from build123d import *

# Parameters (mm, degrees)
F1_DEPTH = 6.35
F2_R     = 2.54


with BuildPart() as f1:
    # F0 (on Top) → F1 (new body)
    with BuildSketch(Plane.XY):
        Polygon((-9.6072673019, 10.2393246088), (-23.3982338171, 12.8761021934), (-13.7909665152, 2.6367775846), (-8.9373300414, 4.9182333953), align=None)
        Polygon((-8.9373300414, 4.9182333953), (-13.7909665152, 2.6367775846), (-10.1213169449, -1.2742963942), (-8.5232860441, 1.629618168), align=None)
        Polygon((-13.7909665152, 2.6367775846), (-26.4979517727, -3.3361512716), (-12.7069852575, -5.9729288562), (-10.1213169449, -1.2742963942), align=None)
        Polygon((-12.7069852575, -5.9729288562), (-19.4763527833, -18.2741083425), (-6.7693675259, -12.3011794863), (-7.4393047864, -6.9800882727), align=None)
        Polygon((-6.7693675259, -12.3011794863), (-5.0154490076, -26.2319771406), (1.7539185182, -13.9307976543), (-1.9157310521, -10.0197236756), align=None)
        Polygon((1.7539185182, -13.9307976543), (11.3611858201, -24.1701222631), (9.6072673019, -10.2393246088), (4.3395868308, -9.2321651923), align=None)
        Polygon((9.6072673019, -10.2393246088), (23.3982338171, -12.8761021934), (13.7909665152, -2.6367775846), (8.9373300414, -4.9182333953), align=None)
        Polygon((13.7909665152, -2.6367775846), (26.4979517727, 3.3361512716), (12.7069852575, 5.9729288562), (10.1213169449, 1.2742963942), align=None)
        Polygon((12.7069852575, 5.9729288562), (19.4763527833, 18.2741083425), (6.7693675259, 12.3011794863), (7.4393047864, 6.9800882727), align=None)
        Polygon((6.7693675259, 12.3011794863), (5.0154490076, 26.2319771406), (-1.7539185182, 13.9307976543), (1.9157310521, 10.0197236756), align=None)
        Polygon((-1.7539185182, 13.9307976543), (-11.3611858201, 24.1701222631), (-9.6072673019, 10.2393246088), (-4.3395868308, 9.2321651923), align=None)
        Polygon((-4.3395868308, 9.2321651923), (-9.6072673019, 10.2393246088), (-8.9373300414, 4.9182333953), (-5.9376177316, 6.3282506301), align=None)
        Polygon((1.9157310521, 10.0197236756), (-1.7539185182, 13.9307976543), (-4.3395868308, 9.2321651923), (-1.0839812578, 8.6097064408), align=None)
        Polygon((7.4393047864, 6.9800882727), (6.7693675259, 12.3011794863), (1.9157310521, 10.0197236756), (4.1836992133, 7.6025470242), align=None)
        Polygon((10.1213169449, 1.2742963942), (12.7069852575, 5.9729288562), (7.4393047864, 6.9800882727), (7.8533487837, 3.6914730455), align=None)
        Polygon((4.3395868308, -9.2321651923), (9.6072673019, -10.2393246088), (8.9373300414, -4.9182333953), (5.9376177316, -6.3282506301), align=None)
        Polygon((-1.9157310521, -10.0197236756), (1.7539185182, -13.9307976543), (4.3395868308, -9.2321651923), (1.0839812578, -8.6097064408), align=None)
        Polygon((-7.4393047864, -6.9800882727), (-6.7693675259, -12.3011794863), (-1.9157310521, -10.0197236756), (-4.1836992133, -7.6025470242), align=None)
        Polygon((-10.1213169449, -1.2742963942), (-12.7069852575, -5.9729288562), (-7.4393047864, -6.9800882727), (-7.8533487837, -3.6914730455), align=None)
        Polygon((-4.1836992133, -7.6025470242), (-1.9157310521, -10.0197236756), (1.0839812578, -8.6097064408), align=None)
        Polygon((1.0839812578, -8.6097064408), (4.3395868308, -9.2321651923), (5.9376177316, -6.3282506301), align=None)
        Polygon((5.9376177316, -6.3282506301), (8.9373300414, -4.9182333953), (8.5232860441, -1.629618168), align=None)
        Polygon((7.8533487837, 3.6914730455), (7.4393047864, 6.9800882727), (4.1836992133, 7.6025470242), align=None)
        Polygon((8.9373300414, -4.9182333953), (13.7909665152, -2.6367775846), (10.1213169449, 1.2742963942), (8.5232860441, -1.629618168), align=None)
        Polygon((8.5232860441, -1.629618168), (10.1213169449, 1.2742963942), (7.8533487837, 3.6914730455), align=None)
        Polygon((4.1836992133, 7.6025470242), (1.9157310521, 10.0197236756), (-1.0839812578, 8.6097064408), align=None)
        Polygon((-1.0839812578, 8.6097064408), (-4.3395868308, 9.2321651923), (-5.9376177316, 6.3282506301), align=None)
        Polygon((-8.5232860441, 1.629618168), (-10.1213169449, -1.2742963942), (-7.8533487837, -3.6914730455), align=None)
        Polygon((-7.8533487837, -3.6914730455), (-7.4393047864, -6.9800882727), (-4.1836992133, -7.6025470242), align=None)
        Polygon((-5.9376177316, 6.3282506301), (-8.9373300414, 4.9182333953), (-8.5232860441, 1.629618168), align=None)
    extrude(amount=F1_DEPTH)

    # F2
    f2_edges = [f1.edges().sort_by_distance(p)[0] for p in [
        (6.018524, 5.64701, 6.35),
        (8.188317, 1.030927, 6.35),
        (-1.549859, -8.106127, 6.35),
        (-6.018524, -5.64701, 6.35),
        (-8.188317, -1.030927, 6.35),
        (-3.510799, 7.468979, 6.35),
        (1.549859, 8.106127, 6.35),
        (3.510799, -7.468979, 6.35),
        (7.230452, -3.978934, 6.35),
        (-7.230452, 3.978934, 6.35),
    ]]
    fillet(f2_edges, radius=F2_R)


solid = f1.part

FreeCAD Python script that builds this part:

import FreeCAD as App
import Part
import Sketcher
Q = App.Units.Quantity


def edges_at(feature, points):
    """Names of the edges that pass closest to the given points."""
    edges = feature.Shape.Edges
    near = lambda p: min(range(len(edges)), key=lambda i: edges[i].distToShape(Part.Vertex(*p))[0])
    return sorted({f"Edge{near(p) + 1}" for p in points})

doc = App.newDocument("Part")
params = doc.addObject("Spreadsheet::Sheet", "Params")
for row, (alias, value) in enumerate([
    ("pad1_length", "0.25 in"),
    ("fillet_radius", "0.1 in"),
], start=1):
    params.set(f"A{row}", alias)
    params.set(f"B{row}", "=" + value)
    params.setAlias(f"B{row}", alias)

body = doc.addObject("PartDesign::Body", "Body")

sketch1 = body.newObject("Sketcher::SketchObject", "Sketch")
sketch1.AttachmentSupport = (doc.getObject("XY_Plane"), [""])
sketch1.MapMode = "FlatFace"
sketch1.addGeometry([
    Part.LineSegment(App.Vector(23, -13, 0), App.Vector(14, -3, 0)),
    Part.LineSegment(App.Vector(14, -3, 0), App.Vector(26, 3, 0)),
    Part.LineSegment(App.Vector(26, 3, 0), App.Vector(13, 6, 0)),
    Part.LineSegment(App.Vector(13, 6, 0), App.Vector(19, 18, 0)),
    Part.LineSegment(App.Vector(19, 18, 0), App.Vector(7, 12, 0)),
    Part.LineSegment(App.Vector(7, 12, 0), App.Vector(5, 26, 0)),
    Part.LineSegment(App.Vector(5, 26, 0), App.Vector(-2, 14, 0)),
    Part.LineSegment(App.Vector(-2, 14, 0), App.Vector(-11, 24, 0)),
    Part.LineSegment(App.Vector(-11, 24, 0), App.Vector(-10, 10, 0)),
    Part.LineSegment(App.Vector(-10, 10, 0), App.Vector(-23, 13, 0)),
    Part.LineSegment(App.Vector(-23, 13, 0), App.Vector(-14, 3, 0)),
    Part.LineSegment(App.Vector(-14, 3, 0), App.Vector(-26, -3, 0)),
    Part.LineSegment(App.Vector(-26, -3, 0), App.Vector(-13, -6, 0)),
    Part.LineSegment(App.Vector(-13, -6, 0), App.Vector(-19, -18, 0)),
    Part.LineSegment(App.Vector(-19, -18, 0), App.Vector(-7, -12, 0)),
    Part.LineSegment(App.Vector(-7, -12, 0), App.Vector(-5, -26, 0)),
    Part.LineSegment(App.Vector(-5, -26, 0), App.Vector(2, -14, 0)),
    Part.LineSegment(App.Vector(2, -14, 0), App.Vector(11, -24, 0)),
    Part.LineSegment(App.Vector(11, -24, 0), App.Vector(10, -10, 0)),
    Part.LineSegment(App.Vector(10, -10, 0), App.Vector(23, -13, 0)),
    Part.LineSegment(App.Vector(9, -2, 0), App.Vector(6, -6, 0)),
    Part.LineSegment(App.Vector(6, -6, 0), App.Vector(1, -9, 0)),
    Part.LineSegment(App.Vector(1, -9, 0), App.Vector(-4, -8, 0)),
    Part.LineSegment(App.Vector(-4, -8, 0), App.Vector(-8, -4, 0)),
    Part.LineSegment(App.Vector(-8, -4, 0), App.Vector(-9, 2, 0)),
    Part.LineSegment(App.Vector(-9, 2, 0), App.Vector(-6, 6, 0)),
    Part.LineSegment(App.Vector(-6, 6, 0), App.Vector(-1, 9, 0)),
    Part.LineSegment(App.Vector(-1, 9, 0), App.Vector(4, 8, 0)),
    Part.LineSegment(App.Vector(4, 8, 0), App.Vector(8, 4, 0)),
    Part.LineSegment(App.Vector(8, 4, 0), App.Vector(9, -2, 0)),
], False)
sketch1.addConstraint([
    Sketcher.Constraint("Coincident", 0, 2, 1, 1),
    Sketcher.Constraint("Coincident", 1, 2, 2, 1),
    Sketcher.Constraint("Coincident", 2, 2, 3, 1),
    Sketcher.Constraint("Coincident", 3, 2, 4, 1),
    Sketcher.Constraint("Coincident", 4, 2, 5, 1),
    Sketcher.Constraint("Coincident", 5, 2, 6, 1),
    Sketcher.Constraint("Coincident", 6, 2, 7, 1),
    Sketcher.Constraint("Coincident", 7, 2, 8, 1),
    Sketcher.Constraint("Coincident", 8, 2, 9, 1),
    Sketcher.Constraint("Coincident", 9, 2, 10, 1),
    Sketcher.Constraint("Coincident", 10, 2, 11, 1),
    Sketcher.Constraint("Coincident", 11, 2, 12, 1),
    Sketcher.Constraint("Coincident", 12, 2, 13, 1),
    Sketcher.Constraint("Coincident", 13, 2, 14, 1),
    Sketcher.Constraint("Coincident", 14, 2, 15, 1),
    Sketcher.Constraint("Coincident", 15, 2, 16, 1),
    Sketcher.Constraint("Coincident", 16, 2, 17, 1),
    Sketcher.Constraint("Coincident", 17, 2, 18, 1),
    Sketcher.Constraint("Coincident", 18, 2, 19, 1),
    Sketcher.Constraint("Coincident", 19, 2, 0, 1),
    Sketcher.Constraint("Coincident", 20, 2, 21, 1),
    Sketcher.Constraint("Coincident", 21, 2, 22, 1),
    Sketcher.Constraint("Coincident", 22, 2, 23, 1),
    Sketcher.Constraint("Coincident", 23, 2, 24, 1),
    Sketcher.Constraint("Coincident", 24, 2, 25, 1),
    Sketcher.Constraint("Coincident", 25, 2, 26, 1),
    Sketcher.Constraint("Coincident", 26, 2, 27, 1),
    Sketcher.Constraint("Coincident", 27, 2, 28, 1),
    Sketcher.Constraint("Coincident", 28, 2, 29, 1),
    Sketcher.Constraint("Coincident", 29, 2, 20, 1),
    Sketcher.Constraint("Symmetric", 0, 2, 10, 2, -1, 1),
    Sketcher.Constraint("Symmetric", 1, 2, 11, 2, -1, 1),
    Sketcher.Constraint("Symmetric", 2, 2, 12, 2, -1, 1),
    Sketcher.Constraint("Symmetric", 3, 2, 13, 2, -1, 1),
    Sketcher.Constraint("Symmetric", 4, 2, 14, 2, -1, 1),
    Sketcher.Constraint("Symmetric", 5, 2, 15, 2, -1, 1),
    Sketcher.Constraint("Symmetric", 6, 2, 16, 2, -1, 1),
    Sketcher.Constraint("Symmetric", 7, 2, 17, 2, -1, 1),
    Sketcher.Constraint("Symmetric", 8, 2, 18, 2, -1, 1),
    Sketcher.Constraint("Symmetric", 9, 2, 19, 2, -1, 1),
    Sketcher.Constraint("Symmetric", 20, 2, 25, 2, -1, 1),
    Sketcher.Constraint("Symmetric", 21, 2, 26, 2, -1, 1),
    Sketcher.Constraint("Symmetric", 22, 2, 27, 2, -1, 1),
    Sketcher.Constraint("Symmetric", 23, 2, 28, 2, -1, 1),
    Sketcher.Constraint("Symmetric", 24, 2, 29, 2, -1, 1),
    Sketcher.Constraint("Parallel", 1, 4),
    Sketcher.Constraint("Parallel", 3, 6),
    Sketcher.Constraint("Parallel", 0, 7),
    Sketcher.Constraint("Parallel", 5, 8),
    Sketcher.Constraint("Parallel", 2, 9),
    Sketcher.Constraint("Parallel", 16, 20),
    Sketcher.Constraint("Parallel", 14, 21),
    Sketcher.Constraint("Parallel", 19, 22),
    Sketcher.Constraint("Parallel", 17, 23),
    Sketcher.Constraint("Parallel", 18, 24),
    Sketcher.Constraint("Equal", 0, 1),
    Sketcher.Constraint("Equal", 1, 2),
    Sketcher.Constraint("Equal", 2, 3),
    Sketcher.Constraint("Equal", 3, 4),
    Sketcher.Constraint("Equal", 4, 5),
    Sketcher.Constraint("Equal", 5, 6),
    Sketcher.Constraint("Equal", 6, 7),
    Sketcher.Constraint("Equal", 7, 8),
    Sketcher.Constraint("Equal", 8, 9),
    Sketcher.Constraint("Equal", 20, 21),
    Sketcher.Constraint("Equal", 21, 22),
    Sketcher.Constraint("Equal", 22, 23),
    Sketcher.Constraint("Equal", 23, 24),
    Sketcher.Constraint("Distance", 20, Q("5.363099 mm")),
    Sketcher.Constraint("DistanceX", 22, 2, -1, 1, Q("4.183699 mm")),
    Sketcher.Constraint("DistanceX", 3, 2, 1, 2, Q("7.021599 mm")),
    Sketcher.Constraint("DistanceX", 9, 2, 4, 2, Q("30.167601 mm")),
    Sketcher.Constraint("DistanceX", 10, 2, 8, 2, Q("4.183699 mm")),
    Sketcher.Constraint("DistanceY", 10, 2, 4, 2, Q("9.664402 mm")),
    Sketcher.Constraint("DistanceY", 15, 2, 0, 2, Q("23.5952 mm")),
])
pad1 = body.newObject("PartDesign::Pad", "Pad")
pad1.Profile = sketch1
pad1.setExpression("Length", "Params.pad1_length")
doc.recompute()

fillet = body.newObject("PartDesign::Fillet", "Fillet")
fillet.Base = (pad1, edges_at(pad1, [
    (6.019, 5.647, 6.35),
    (8.188, 1.031, 6.35),
    (-1.55, -8.106, 6.35),
    (-6.019, -5.647, 6.35),
    (-8.188, -1.031, 6.35),
    (-3.511, 7.469, 6.35),
    (1.55, 8.106, 6.35),
    (3.511, -7.469, 6.35),
    (7.23, -3.979, 6.35),
    (-7.23, 3.979, 6.35),
]))
fillet.setExpression("Radius", "Params.fillet_radius")

doc.recompute()
